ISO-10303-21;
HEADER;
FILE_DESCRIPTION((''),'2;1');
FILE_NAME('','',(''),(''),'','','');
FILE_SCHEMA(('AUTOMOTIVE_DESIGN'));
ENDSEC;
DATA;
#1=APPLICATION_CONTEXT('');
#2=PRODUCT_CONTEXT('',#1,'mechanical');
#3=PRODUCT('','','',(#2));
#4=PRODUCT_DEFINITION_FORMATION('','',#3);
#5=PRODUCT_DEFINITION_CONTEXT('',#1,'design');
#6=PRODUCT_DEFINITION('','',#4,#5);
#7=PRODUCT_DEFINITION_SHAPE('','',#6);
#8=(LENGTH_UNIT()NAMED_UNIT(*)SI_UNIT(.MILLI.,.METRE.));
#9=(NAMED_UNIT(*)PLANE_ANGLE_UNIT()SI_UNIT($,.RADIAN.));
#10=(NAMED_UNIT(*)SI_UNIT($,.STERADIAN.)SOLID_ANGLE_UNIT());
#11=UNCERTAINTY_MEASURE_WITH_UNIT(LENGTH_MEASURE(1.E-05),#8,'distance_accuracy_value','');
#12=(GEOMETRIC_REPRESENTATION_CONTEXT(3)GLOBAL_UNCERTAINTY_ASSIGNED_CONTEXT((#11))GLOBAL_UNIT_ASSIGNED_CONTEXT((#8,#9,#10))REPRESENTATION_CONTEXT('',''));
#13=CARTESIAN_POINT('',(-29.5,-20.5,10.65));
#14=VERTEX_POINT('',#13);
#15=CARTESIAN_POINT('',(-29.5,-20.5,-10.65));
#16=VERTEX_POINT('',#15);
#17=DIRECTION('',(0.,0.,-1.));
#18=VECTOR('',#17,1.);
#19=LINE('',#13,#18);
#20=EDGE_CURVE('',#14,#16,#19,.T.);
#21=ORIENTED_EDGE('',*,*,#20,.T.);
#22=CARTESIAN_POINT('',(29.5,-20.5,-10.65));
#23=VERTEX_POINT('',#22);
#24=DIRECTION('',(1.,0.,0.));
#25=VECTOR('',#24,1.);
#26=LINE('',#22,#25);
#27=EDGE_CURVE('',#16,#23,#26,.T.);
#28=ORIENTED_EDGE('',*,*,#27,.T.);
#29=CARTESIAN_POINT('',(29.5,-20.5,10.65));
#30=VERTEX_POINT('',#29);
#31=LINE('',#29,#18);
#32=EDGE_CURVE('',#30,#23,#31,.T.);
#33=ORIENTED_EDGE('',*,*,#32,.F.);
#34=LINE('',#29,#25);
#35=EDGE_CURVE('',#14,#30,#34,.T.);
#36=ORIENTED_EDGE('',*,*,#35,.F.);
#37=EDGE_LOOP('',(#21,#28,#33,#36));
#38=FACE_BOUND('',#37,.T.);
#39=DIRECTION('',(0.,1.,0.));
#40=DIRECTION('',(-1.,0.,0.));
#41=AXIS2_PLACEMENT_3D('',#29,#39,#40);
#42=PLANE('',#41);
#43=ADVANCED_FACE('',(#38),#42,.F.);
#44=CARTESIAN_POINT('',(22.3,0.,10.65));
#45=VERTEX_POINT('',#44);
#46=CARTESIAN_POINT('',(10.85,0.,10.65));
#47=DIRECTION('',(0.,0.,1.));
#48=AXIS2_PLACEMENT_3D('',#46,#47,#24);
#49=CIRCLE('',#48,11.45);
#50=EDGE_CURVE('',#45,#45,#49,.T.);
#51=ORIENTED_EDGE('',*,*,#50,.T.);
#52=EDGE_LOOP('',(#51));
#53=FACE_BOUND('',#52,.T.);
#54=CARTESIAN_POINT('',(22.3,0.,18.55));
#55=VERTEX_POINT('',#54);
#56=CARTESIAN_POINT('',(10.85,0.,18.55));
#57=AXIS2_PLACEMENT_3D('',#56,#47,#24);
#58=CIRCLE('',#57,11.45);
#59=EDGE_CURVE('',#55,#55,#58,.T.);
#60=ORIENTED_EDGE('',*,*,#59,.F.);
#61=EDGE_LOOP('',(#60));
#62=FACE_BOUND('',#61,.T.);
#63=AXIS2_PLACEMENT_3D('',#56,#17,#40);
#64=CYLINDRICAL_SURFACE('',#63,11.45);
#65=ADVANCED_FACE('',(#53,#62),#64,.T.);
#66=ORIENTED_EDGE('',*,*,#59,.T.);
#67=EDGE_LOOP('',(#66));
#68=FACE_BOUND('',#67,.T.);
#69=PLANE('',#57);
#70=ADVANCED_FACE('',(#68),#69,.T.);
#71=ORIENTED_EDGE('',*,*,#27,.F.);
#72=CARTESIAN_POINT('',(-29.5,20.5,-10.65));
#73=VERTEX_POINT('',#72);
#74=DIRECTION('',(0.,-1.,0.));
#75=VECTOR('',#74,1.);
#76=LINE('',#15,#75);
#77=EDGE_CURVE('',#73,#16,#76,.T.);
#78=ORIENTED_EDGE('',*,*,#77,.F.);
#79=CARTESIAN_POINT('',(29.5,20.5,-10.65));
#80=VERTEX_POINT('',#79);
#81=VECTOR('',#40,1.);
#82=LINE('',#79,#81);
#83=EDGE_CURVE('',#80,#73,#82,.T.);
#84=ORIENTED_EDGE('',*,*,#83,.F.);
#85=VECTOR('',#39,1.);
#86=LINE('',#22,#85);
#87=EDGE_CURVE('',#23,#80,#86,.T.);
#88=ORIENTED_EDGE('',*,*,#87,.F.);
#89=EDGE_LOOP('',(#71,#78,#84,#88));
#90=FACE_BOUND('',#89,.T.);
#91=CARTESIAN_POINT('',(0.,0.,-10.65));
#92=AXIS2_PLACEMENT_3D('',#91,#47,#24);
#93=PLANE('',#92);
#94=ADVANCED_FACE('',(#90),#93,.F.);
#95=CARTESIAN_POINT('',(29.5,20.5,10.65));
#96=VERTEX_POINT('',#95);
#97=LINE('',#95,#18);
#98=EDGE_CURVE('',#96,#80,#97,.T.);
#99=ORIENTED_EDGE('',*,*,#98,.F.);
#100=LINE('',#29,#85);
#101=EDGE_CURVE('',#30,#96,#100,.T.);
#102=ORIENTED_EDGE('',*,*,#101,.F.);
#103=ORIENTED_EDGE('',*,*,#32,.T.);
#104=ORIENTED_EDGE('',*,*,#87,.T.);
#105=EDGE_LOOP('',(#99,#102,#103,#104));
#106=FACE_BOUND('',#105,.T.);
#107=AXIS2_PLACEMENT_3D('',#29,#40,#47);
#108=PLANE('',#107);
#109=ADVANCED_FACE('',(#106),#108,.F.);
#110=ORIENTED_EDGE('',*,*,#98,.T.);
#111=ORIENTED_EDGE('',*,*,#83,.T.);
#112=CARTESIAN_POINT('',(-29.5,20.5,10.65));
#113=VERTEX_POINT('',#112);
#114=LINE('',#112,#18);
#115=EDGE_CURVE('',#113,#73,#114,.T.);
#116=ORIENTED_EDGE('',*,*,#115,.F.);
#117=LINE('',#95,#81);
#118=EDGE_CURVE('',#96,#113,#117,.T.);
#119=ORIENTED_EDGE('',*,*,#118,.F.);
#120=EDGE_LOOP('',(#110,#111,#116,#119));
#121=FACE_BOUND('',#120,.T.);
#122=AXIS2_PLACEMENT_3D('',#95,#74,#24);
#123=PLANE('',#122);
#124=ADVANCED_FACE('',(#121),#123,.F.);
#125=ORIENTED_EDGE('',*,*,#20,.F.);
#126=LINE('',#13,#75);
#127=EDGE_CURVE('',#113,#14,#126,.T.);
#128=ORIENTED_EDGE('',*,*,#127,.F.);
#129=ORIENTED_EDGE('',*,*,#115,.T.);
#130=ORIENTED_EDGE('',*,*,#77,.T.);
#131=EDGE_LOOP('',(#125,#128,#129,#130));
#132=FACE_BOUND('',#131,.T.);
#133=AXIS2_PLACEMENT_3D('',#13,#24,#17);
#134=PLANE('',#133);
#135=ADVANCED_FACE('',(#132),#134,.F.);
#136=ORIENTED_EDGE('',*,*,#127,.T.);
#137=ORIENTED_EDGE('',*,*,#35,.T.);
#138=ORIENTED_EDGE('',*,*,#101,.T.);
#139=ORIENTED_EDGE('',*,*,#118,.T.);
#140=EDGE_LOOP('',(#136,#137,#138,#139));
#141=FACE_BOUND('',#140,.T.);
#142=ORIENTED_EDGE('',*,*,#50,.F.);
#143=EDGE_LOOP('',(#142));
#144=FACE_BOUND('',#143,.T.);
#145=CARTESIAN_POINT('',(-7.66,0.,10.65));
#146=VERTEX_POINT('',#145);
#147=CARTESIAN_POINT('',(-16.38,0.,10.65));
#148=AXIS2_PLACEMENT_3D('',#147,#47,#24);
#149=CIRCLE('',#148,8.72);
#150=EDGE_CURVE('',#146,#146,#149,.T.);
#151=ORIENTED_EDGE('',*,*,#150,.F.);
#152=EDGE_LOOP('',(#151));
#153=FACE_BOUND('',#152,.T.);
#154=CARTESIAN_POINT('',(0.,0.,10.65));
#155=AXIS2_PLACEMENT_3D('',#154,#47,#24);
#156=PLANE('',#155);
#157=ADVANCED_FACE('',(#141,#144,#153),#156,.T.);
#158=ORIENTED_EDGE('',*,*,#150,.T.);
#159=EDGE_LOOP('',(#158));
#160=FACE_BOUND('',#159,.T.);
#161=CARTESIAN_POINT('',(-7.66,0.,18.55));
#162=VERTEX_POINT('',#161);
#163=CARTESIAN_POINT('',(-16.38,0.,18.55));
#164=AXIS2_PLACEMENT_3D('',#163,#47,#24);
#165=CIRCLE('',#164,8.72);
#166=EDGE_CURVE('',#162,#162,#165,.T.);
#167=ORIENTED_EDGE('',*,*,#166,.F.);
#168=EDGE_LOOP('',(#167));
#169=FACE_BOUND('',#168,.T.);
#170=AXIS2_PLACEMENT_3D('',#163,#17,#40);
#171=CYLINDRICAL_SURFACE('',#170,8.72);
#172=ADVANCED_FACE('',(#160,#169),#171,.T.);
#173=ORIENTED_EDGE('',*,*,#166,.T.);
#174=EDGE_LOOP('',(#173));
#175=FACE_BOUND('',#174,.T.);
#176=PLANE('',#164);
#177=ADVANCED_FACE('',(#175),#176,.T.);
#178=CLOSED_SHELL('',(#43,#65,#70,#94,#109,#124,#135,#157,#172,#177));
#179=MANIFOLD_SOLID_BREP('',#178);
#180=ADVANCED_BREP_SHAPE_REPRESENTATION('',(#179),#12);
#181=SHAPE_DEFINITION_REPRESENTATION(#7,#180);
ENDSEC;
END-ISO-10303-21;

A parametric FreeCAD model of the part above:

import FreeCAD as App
import Part
import Sketcher


def add_polygon(sketch, points):
    """Adds a closed chain of lines whose ends are joined by coincident constraints."""
    first, n = sketch.GeometryCount, len(points)
    for a, b in zip(points, points[1:] + points[:1]):
        sketch.addGeometry(Part.LineSegment(App.Vector(*a, 0), App.Vector(*b, 0)), False)
    for i in range(n):
        sketch.addConstraint(Sketcher.Constraint("Coincident", first + i, 2, first + (i + 1) % n, 1))

doc = App.newDocument("Part")
body = doc.addObject("PartDesign::Body", "Body")

# Sketch on XY plane
sketch1 = body.newObject("Sketcher::SketchObject", "Sketch")
sketch1.AttachmentSupport = (doc.getObject("XY_Plane"), [""])
sketch1.MapMode = "FlatFace"
add_polygon(sketch1, [(-30, 20), (-30, -20), (30, -20), (30, 20)])  # lines 0-3
sketch1.addConstraint(Sketcher.Constraint("Vertical", 0))
sketch1.addConstraint(Sketcher.Constraint("Horizontal", 1))
sketch1.addConstraint(Sketcher.Constraint("Vertical", 2))
sketch1.addConstraint(Sketcher.Constraint("Horizontal", 3))
sketch1.addConstraint(Sketcher.Constraint("Symmetric", 0, 2, 2, 2, -1, 1))
sketch1.addConstraint(Sketcher.Constraint("DistanceX", 1, 1, 1, 2, 59.0))
sketch1.addConstraint(Sketcher.Constraint("DistanceY", 0, 2, 0, 1, 41.0))
pad1 = body.newObject("PartDesign::Pad", "Pad")
pad1.Profile = sketch1
pad1.Length = 21.3
pad1.Midplane = True

# Sketch on XY plane
sketch2 = body.newObject("Sketcher::SketchObject", "Sketch001")
sketch2.AttachmentSupport = (doc.getObject("XY_Plane"), [""])
sketch2.MapMode = "FlatFace"
sketch2.AttachmentOffset = App.Placement(App.Vector(0, 0, 10.65), App.Rotation())
sketch2.addGeometry(Part.Circle(App.Vector(11, 0, 0), App.Vector(0, 0, 1), 11), False)
sketch2.addGeometry(Part.Circle(App.Vector(-16, 0, 0), App.Vector(0, 0, 1), 9), False)
sketch2.addConstraint(Sketcher.Constraint("PointOnObject", 0, 3, -1))
sketch2.addConstraint(Sketcher.Constraint("PointOnObject", 1, 3, -1))
sketch2.addConstraint(Sketcher.Constraint("Diameter", 0, 22.9))
sketch2.addConstraint(Sketcher.Constraint("Diameter", 1, 17.44))
sketch2.addConstraint(Sketcher.Constraint("DistanceX", -1, 1, 0, 3, 10.85))
sketch2.addConstraint(Sketcher.Constraint("DistanceX", 1, 3, -1, 1, 16.38))
pad2 = body.newObject("PartDesign::Pad", "Pad001")
pad2.Profile = sketch2
pad2.Length = 7.9

doc.recompute()
